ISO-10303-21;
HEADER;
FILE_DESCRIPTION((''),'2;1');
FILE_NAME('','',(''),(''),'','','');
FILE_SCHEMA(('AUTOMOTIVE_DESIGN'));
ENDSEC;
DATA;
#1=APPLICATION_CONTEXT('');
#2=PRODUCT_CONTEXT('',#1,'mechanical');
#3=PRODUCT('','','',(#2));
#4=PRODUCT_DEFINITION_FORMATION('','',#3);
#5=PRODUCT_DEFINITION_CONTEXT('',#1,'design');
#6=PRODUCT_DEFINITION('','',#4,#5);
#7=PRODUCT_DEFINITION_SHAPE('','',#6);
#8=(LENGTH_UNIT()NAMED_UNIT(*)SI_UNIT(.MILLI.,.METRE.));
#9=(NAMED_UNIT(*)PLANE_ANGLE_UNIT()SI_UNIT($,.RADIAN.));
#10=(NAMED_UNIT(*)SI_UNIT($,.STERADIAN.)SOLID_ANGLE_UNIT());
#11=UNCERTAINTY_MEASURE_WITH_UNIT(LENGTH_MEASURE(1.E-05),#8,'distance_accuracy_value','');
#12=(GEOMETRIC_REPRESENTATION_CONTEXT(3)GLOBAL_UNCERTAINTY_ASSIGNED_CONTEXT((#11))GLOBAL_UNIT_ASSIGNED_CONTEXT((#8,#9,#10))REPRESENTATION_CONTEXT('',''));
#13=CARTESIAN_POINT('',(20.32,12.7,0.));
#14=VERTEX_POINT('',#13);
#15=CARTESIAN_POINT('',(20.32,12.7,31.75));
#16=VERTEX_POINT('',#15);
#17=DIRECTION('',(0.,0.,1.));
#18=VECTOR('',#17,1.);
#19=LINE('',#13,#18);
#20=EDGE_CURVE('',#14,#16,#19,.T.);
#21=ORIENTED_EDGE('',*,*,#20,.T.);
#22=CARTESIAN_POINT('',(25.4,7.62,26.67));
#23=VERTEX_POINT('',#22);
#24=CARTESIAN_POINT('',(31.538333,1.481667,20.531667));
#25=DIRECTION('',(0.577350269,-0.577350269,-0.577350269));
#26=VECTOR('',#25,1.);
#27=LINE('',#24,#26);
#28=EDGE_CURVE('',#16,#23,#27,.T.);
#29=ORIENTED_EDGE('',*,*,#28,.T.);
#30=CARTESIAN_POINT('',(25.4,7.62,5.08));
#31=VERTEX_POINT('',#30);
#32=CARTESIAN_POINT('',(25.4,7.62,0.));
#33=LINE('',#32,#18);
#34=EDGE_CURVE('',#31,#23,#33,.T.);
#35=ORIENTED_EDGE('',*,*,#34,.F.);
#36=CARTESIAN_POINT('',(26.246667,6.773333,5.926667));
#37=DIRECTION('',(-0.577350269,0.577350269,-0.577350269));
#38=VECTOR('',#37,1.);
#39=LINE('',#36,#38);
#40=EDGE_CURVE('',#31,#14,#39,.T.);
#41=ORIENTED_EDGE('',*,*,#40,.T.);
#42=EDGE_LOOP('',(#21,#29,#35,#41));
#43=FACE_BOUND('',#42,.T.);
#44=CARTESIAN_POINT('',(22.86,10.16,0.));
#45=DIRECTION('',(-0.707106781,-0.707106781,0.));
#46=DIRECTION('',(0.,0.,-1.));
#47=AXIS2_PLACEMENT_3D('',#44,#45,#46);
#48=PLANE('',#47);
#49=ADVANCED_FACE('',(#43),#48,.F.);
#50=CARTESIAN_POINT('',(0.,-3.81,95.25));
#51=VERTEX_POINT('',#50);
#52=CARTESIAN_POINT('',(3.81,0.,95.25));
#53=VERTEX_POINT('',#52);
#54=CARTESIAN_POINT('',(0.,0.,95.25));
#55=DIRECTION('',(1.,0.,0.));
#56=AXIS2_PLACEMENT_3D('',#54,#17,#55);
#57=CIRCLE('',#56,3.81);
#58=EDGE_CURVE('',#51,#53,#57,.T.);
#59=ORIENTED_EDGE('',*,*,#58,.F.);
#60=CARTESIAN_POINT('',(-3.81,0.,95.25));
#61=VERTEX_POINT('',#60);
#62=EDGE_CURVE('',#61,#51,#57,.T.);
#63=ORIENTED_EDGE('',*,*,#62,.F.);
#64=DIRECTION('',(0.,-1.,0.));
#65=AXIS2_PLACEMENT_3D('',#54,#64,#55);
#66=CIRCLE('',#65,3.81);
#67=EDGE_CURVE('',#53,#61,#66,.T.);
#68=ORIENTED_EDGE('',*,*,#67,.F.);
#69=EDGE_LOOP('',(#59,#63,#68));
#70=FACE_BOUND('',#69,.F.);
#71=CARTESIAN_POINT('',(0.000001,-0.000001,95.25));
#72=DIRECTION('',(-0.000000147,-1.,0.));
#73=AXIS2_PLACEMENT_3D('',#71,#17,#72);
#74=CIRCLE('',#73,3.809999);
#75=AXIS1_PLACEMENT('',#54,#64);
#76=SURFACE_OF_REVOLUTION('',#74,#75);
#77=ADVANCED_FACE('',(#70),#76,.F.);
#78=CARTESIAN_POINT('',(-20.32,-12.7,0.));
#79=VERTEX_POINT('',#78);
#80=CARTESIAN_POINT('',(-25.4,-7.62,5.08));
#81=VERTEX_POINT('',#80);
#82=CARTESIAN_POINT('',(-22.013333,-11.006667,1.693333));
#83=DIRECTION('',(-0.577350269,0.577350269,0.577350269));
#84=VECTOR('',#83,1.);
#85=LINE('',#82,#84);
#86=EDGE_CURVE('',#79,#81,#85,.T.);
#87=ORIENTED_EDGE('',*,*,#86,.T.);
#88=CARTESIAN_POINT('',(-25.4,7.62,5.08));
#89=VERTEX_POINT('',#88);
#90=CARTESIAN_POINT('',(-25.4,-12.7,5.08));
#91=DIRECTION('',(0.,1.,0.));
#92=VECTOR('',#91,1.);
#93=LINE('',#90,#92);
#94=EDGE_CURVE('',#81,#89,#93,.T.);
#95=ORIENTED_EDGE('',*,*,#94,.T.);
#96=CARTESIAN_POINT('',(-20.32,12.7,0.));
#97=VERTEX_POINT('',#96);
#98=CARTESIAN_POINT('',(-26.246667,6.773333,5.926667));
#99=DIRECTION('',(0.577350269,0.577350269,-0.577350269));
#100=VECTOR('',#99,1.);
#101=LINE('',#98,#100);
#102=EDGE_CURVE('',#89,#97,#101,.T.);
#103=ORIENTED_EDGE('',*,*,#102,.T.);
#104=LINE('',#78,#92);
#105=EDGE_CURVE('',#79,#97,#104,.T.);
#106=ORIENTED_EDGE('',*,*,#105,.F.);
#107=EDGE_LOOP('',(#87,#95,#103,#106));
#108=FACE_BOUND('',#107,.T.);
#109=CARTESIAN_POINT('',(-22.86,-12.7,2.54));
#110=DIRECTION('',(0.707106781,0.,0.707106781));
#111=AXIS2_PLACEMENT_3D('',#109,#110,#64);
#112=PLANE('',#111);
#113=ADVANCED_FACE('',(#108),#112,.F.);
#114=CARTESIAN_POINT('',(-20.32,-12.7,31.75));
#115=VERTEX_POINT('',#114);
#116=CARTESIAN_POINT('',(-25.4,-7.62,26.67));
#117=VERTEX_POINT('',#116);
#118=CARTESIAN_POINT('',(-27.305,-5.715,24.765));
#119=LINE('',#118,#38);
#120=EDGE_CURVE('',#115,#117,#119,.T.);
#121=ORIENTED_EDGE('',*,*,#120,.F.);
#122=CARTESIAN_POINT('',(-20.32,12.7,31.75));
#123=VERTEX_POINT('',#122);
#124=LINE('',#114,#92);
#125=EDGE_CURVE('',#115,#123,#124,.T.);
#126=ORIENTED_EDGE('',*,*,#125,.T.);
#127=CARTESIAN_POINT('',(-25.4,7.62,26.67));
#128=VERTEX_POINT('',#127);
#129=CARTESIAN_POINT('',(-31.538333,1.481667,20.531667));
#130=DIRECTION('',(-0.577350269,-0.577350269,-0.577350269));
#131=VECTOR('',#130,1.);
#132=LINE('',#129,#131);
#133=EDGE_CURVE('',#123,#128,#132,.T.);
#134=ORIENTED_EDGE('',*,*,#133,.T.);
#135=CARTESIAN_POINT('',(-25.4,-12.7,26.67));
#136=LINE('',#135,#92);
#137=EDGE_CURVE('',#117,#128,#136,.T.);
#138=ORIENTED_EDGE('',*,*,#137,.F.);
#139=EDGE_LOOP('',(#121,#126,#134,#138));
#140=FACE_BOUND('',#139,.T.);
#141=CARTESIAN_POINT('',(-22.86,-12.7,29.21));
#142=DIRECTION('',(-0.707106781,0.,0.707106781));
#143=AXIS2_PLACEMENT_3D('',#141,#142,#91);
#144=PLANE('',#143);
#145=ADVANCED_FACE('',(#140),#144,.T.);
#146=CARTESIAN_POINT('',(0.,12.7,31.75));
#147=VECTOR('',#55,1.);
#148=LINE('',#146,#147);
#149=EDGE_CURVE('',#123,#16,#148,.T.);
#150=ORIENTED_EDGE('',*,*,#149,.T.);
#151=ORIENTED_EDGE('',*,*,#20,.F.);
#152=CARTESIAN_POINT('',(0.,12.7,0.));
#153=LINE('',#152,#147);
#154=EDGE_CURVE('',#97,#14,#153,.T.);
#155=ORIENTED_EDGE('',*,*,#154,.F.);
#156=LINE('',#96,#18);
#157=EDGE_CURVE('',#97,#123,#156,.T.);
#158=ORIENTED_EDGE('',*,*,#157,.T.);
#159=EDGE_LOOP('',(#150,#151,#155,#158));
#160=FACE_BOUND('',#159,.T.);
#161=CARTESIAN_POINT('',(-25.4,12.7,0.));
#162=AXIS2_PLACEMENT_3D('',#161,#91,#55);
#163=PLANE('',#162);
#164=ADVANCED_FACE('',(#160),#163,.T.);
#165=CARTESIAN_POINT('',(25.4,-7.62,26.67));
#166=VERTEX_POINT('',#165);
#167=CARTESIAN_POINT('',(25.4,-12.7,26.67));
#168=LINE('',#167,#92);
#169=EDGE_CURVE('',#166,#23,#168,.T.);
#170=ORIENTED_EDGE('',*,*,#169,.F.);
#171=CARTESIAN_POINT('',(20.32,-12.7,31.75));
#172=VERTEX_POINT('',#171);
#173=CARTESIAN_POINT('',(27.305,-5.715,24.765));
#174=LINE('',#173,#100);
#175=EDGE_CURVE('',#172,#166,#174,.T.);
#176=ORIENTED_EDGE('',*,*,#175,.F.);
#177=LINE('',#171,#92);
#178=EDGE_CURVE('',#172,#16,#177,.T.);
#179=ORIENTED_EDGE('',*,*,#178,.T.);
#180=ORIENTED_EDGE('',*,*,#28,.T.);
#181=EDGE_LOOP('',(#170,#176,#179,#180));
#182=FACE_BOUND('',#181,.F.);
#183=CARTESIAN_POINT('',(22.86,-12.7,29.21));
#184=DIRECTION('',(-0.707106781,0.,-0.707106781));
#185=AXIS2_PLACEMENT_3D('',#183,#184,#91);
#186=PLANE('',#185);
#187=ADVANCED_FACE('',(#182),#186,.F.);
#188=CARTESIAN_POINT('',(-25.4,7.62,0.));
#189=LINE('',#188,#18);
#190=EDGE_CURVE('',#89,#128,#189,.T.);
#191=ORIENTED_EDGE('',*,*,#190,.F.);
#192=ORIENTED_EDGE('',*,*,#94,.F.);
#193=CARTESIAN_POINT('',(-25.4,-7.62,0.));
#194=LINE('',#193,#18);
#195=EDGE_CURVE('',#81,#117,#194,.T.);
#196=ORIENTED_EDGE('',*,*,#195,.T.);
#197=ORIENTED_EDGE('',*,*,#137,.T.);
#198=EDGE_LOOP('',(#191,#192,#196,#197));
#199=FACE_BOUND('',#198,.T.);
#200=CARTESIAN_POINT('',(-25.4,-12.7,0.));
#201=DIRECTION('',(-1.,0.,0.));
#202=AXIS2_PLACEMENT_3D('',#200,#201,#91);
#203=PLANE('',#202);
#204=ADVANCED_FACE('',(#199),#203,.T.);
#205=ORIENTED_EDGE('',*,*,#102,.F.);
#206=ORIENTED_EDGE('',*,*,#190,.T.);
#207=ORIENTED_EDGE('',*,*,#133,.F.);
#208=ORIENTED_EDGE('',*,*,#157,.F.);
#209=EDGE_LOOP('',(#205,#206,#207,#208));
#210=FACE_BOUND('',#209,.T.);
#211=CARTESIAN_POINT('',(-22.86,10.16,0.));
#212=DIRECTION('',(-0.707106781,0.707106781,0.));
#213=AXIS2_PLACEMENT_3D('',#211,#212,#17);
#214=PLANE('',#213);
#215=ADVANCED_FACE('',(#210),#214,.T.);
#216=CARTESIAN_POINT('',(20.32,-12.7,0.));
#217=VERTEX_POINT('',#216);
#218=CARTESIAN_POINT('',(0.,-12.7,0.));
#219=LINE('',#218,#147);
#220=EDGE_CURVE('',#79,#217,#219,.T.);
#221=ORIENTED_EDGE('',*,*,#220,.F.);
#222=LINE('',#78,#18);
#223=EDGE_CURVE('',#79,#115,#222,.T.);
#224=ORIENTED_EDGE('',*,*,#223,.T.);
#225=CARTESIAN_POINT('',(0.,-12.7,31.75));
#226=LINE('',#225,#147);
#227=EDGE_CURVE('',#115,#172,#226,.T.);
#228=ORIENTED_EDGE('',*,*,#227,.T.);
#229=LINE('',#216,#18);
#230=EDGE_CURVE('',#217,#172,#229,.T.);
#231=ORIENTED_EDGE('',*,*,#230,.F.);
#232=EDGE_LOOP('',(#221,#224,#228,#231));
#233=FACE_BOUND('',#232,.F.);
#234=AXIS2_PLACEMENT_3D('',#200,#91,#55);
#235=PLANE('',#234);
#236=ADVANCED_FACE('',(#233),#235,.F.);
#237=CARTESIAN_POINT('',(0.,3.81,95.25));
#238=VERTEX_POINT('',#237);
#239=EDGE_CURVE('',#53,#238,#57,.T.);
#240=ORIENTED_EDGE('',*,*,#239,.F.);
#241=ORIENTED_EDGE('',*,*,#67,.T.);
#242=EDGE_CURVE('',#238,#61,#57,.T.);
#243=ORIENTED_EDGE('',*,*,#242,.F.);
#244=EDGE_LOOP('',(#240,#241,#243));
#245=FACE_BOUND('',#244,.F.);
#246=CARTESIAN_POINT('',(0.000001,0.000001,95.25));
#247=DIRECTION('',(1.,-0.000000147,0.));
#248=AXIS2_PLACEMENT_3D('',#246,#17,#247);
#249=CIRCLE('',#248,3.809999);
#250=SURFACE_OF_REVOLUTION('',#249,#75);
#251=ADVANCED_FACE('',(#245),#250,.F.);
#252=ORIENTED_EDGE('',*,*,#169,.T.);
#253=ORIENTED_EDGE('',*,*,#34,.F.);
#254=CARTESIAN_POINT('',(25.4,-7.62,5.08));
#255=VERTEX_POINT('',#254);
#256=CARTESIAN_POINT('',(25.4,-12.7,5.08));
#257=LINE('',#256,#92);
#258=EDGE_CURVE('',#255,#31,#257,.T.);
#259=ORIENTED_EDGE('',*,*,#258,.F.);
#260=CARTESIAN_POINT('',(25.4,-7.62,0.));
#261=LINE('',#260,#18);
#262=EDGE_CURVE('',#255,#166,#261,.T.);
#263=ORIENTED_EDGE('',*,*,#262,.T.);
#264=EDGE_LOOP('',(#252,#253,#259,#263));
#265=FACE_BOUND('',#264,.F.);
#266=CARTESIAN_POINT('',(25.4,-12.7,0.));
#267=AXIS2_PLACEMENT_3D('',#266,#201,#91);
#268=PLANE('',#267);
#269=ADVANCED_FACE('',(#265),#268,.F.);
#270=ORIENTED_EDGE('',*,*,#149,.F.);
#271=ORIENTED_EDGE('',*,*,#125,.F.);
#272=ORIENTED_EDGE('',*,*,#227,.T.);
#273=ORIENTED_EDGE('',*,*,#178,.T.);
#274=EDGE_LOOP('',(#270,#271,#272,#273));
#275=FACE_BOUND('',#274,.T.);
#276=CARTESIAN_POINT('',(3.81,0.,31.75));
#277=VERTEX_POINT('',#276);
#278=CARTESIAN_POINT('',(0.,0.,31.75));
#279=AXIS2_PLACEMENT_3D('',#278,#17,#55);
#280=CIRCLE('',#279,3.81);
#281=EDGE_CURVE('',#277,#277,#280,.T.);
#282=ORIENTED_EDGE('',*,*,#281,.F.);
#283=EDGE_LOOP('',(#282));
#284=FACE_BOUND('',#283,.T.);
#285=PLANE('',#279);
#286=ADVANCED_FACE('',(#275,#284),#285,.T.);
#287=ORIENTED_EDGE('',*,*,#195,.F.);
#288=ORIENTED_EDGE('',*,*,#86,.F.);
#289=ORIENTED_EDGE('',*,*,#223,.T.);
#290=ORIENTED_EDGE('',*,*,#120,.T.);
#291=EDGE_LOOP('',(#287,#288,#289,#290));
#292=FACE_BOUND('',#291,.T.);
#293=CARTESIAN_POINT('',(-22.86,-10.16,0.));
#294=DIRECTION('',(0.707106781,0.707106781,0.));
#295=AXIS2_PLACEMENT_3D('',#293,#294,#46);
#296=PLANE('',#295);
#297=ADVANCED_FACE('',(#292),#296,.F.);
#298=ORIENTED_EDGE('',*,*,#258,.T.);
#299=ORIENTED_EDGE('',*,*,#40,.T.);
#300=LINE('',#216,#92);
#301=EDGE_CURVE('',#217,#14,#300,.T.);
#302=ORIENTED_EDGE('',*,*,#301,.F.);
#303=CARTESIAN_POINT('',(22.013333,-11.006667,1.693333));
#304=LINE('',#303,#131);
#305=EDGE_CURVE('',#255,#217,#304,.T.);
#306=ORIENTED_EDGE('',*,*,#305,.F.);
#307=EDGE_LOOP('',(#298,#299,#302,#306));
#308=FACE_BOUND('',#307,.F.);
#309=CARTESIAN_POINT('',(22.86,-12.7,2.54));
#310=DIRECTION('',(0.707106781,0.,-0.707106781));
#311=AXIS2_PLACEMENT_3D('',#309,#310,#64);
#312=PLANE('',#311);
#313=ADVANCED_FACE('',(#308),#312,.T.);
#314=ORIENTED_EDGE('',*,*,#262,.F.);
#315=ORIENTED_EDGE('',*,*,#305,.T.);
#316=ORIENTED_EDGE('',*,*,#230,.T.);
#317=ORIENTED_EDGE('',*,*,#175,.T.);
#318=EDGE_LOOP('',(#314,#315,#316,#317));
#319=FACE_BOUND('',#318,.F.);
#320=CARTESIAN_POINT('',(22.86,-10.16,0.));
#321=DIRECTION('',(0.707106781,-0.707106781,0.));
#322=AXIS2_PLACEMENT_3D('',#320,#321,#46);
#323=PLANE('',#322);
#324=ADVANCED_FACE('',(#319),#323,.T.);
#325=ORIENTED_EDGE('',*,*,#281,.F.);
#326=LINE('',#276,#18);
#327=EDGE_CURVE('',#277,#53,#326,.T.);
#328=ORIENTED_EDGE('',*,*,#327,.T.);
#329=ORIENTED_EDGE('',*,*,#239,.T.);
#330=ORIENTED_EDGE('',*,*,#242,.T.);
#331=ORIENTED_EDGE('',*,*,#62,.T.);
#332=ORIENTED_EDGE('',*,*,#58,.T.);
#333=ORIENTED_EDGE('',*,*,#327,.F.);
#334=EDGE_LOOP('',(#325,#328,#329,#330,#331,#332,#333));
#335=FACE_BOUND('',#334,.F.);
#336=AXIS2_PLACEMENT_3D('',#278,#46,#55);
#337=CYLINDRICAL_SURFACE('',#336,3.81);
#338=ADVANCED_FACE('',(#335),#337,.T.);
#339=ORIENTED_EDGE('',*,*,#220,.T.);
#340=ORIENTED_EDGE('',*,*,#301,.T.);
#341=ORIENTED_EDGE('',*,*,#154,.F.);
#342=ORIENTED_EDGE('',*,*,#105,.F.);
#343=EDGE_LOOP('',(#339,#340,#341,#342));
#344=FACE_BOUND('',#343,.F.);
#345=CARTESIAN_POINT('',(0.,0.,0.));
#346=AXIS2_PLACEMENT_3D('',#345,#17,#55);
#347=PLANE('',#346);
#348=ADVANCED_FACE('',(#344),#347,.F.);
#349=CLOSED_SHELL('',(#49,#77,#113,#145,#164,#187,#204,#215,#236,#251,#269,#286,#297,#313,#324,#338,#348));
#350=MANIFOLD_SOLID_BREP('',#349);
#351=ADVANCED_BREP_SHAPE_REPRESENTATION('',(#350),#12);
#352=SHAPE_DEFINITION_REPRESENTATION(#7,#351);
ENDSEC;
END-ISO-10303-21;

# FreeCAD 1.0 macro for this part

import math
import FreeCAD as App
import Part
import Sketcher
Q = App.Units.Quantity


def edges_at(feature, points):
    """Names of the edges that pass closest to the given points."""
    edges = feature.Shape.Edges
    near = lambda p: min(range(len(edges)), key=lambda i: edges[i].distToShape(Part.Vertex(*p))[0])
    return sorted({f"Edge{near(p) + 1}" for p in points})


def add_polygon(sketch, points):
    """Adds a closed chain of lines whose ends are joined by coincident constraints."""
    first, n = sketch.GeometryCount, len(points)
    for a, b in zip(points, points[1:] + points[:1]):
        sketch.addGeometry(Part.LineSegment(App.Vector(*a, 0), App.Vector(*b, 0)), False)
    for i in range(n):
        sketch.addConstraint(Sketcher.Constraint("Coincident", first + i, 2, first + (i + 1) % n, 1))

doc = App.newDocument("Part")
body = doc.addObject("PartDesign::Body", "Body")

# Sketch on XY plane
sketch1 = body.newObject("Sketcher::SketchObject", "Sketch")
sketch1.AttachmentSupport = (doc.getObject("XY_Plane"), [""])
sketch1.MapMode = "FlatFace"
add_polygon(sketch1, [(-25, 13), (-25, -13), (25, -13), (25, 13)])  # lines 0-3
sketch1.addConstraint([
    Sketcher.Constraint("Vertical", 0),
    Sketcher.Constraint("Horizontal", 1),
    Sketcher.Constraint("Vertical", 2),
    Sketcher.Constraint("Horizontal", 3),
    Sketcher.Constraint("Symmetric", 0, 2, 2, 2, -1, 1),
    Sketcher.Constraint("DistanceX", 1, 1, 1, 2, Q("2 in")),
    Sketcher.Constraint("DistanceY", 0, 2, 0, 1, Q("1 in")),
])
pad1 = body.newObject("PartDesign::Pad", "Pad")
pad1.Profile = sketch1
pad1.Length = Q("1.25 in")

# Sketch on XY plane
sketch2 = body.newObject("Sketcher::SketchObject", "Sketch001")
sketch2.AttachmentSupport = (doc.getObject("XY_Plane"), [""])
sketch2.MapMode = "FlatFace"
sketch2.AttachmentOffset = App.Placement(App.Vector(0, 0, 1.25 * 25.4), App.Rotation())
sketch2.addGeometry(Part.Circle(App.Vector(0, 0, 0), App.Vector(0, 0, 1), 3.8), False)
sketch2.addConstraint([
    Sketcher.Constraint("Coincident", 0, 3, -1, 1),
    Sketcher.Constraint("Diameter", 0, Q("0.3 in")),
])
pad2 = body.newObject("PartDesign::Pad", "Pad001")
pad2.Profile = sketch2
pad2.Length = Q("2.5 in")

# Sketch on XY plane
sketch3 = body.newObject("Sketcher::SketchObject", "Sketch002")
sketch3.AttachmentSupport = (doc.getObject("XY_Plane"), [""])
sketch3.MapMode = "FlatFace"
sketch3.AttachmentOffset = App.Placement(App.Vector(0, 0, 3.75 * 25.4), App.Rotation())
sketch3.addGeometry([
    Part.LineSegment(App.Vector(0, 3.8, 0), App.Vector(0, -3.8, 0)),
    Part.ArcOfCircle(Part.Circle(App.Vector(0, 0, 0), App.Vector(0, 0, 1), 3.8), math.radians(-90), math.radians(0)),
    Part.ArcOfCircle(Part.Circle(App.Vector(0, 0, 0), App.Vector(0, 0, 1), 3.8), math.radians(0), math.radians(90)),
], False)
sketch3.addConstraint([
    Sketcher.Constraint("Coincident", 0, 2, 1, 1),
    Sketcher.Constraint("Tangent", 1, 2, 2, 1),
    Sketcher.Constraint("Coincident", 2, 2, 0, 1),
    Sketcher.Constraint("Vertical", 0),
    Sketcher.Constraint("Coincident", 1, 3, -1, 1),
    Sketcher.Constraint("Equal", 1, 2),
    Sketcher.Constraint("PointOnObject", 0, 2, -2),
    Sketcher.Constraint("PointOnObject", 1, 2, -1),
    Sketcher.Constraint("Radius", 1, Q("0.15 in")),
])
revolution = body.newObject("PartDesign::Revolution", "Revolution")
revolution.Profile = sketch3
revolution.ReferenceAxis = (sketch3, ["V_Axis"])
revolution.Angle = 360
doc.recompute()

chamfer = body.newObject("PartDesign::Chamfer", "Chamfer")
chamfer.Base = (revolution, edges_at(revolution, [
    (25.4, 0, 0),
    (25.4, 12.7, 15.875),
    (25.4, 0, 31.75),
    (25.4, -12.7, 15.875),
]))
chamfer.Size = Q("0.2 in")
doc.recompute()

chamfer2 = body.newObject("PartDesign::Chamfer", "Chamfer001")
chamfer2.Base = (chamfer, edges_at(chamfer, [
    (-25.4, 0, 31.75),
    (-25.4, 12.7, 15.875),
    (-25.4, -12.7, 15.875),
    (-25.4, 0, 0),
]))
chamfer2.Size = Q("0.2 in")

doc.recompute()
